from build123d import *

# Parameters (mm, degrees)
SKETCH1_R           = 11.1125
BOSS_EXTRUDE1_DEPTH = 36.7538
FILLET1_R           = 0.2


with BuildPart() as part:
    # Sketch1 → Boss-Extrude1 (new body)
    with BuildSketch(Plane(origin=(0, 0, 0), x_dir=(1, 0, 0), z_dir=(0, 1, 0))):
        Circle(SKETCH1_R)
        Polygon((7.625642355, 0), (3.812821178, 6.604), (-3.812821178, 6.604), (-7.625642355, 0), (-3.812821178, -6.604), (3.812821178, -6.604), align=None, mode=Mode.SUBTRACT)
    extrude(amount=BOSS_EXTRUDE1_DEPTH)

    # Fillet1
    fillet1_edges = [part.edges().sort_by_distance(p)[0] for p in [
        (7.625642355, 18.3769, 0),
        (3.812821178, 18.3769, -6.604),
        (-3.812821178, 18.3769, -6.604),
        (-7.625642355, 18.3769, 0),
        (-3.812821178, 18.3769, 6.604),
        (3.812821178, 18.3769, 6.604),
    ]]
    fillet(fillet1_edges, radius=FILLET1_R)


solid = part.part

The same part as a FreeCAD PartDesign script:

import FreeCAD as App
import Part
import Sketcher

V = App.Vector
Q = App.Units.Quantity


def edges_at(feature, points):
    """Names of the edges that pass closest to the given points."""
    edges = feature.Shape.Edges
    near = lambda p: min(range(len(edges)), key=lambda i: edges[i].distToShape(Part.Vertex(*p))[0])
    return sorted({f"Edge{near(p) + 1}" for p in points})


def add_polygon(sketch, points):
    """Adds a closed chain of lines whose ends are joined by coincident constraints."""
    first, n = sketch.GeometryCount, len(points)
    for a, b in zip(points, points[1:] + points[:1]):
        sketch.addGeometry(Part.LineSegment(App.Vector(*a, 0), App.Vector(*b, 0)), False)
    for i in range(n):
        sketch.addConstraint(Sketcher.Constraint("Coincident", first + i, 2, first + (i + 1) % n, 1))

doc = App.newDocument("Part")
body = doc.addObject("PartDesign::Body", "Body")

# Sketch on XZ plane
sketch1 = body.newObject("Sketcher::SketchObject", "Sketch")
sketch1.AttachmentSupport = (doc.getObject("XZ_Plane"), [""])
sketch1.MapMode = "FlatFace"
sketch1.addGeometry(Part.Circle(V(0, 0, 0), V(0, 0, 1), 11.1125), False)  # 0
add_polygon(sketch1, [(3.812821, -6.604), (7.625642, 0), (3.812821, 6.604), (-3.812821, 6.604), (-7.625642, 0), (-3.812821, -6.604)])  # lines 1-6
sketch1.addConstraint(Sketcher.Constraint("Horizontal", 3))
sketch1.addConstraint(Sketcher.Constraint("Horizontal", 6))
sketch1.addConstraint(Sketcher.Constraint("Coincident", 0, 3, -1, 1))
sketch1.addConstraint(Sketcher.Constraint("Symmetric", 1, 2, 4, 2, -1, 1))
sketch1.addConstraint(Sketcher.Constraint("Symmetric", 2, 2, 5, 2, -1, 1))
sketch1.addConstraint(Sketcher.Constraint("PointOnObject", 1, 2, -1))
sketch1.addConstraint(Sketcher.Constraint("Parallel", 1, 4))
sketch1.addConstraint(Sketcher.Constraint("Vertical", 3, 2, 5, 2))
sketch1.addConstraint(Sketcher.Constraint("Diameter", 0, Q("0.875 in")))
sketch1.addConstraint(Sketcher.Constraint("Angle", 1, Q("60 deg")))
sketch1.addConstraint(Sketcher.Constraint("DistanceY", -1, 1, 2, 2, Q("0.26 in")))
sketch1.addConstraint(Sketcher.Constraint("DistanceX", 3, 2, 3, 1, Q("7.625642 mm")))
pad1 = body.newObject("PartDesign::Pad", "Pad")
pad1.Profile = sketch1
pad1.Length = Q("1.447 in")
pad1.Reversed = True
doc.recompute()

fillet = body.newObject("PartDesign::Fillet", "Fillet")
fillet.Base = (pad1, edges_at(pad1, [
    (7.626, 18.377, 0),
    (3.813, 18.377, -6.604),
    (-3.813, 18.377, -6.604),
    (-7.626, 18.377, 0),
    (-3.813, 18.377, 6.604),
    (3.813, 18.377, 6.604),
]))
fillet.Radius = 0.2

doc.recompute()
